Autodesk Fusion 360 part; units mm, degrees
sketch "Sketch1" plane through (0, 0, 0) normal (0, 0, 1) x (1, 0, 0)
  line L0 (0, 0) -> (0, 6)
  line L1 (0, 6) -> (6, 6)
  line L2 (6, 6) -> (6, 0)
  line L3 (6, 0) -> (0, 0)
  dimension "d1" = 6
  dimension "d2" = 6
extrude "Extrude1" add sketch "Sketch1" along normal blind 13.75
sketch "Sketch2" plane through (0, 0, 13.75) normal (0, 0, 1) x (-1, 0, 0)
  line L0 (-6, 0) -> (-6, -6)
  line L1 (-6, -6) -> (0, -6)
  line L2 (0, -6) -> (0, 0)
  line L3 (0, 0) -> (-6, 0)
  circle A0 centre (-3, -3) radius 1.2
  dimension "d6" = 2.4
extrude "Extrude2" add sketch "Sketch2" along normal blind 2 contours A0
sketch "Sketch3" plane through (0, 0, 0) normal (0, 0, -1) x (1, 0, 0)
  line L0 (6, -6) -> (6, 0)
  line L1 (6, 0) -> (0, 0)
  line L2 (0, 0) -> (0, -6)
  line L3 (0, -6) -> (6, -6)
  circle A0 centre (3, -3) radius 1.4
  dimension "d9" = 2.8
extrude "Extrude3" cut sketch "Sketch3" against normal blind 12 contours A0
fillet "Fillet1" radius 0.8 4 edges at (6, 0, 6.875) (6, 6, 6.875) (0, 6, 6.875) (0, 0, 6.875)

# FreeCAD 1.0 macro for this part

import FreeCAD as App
import Part
import Sketcher

V = App.Vector
Q = App.Units.Quantity


def edges_at(feature, points):
    """Names of the edges that pass closest to the given points."""
    edges = feature.Shape.Edges
    near = lambda p: min(range(len(edges)), key=lambda i: edges[i].distToShape(Part.Vertex(*p))[0])
    return sorted({f"Edge{near(p) + 1}" for p in points})

doc = App.newDocument("Part")
body = doc.addObject("PartDesign::Body", "Body")

# Sketch on XY plane
sketch1 = body.newObject("Sketcher::SketchObject", "Sketch")
sketch1.AttachmentSupport = (doc.getObject("XY_Plane"), [""])
sketch1.MapMode = "FlatFace"
sketch1.addGeometry([
    Part.LineSegment(V(0, 6, 0), V(0, 0, 0)),
    Part.LineSegment(V(0, 0, 0), V(6, 0, 0)),
    Part.LineSegment(V(6, 0, 0), V(6, 6, 0)),
    Part.LineSegment(V(6, 6, 0), V(0, 6, 0)),
], False)
sketch1.addConstraint([
    Sketcher.Constraint("Coincident", 0, 2, 1, 1),
    Sketcher.Constraint("Coincident", 1, 2, 2, 1),
    Sketcher.Constraint("Coincident", 2, 2, 3, 1),
    Sketcher.Constraint("Coincident", 3, 2, 0, 1),
    Sketcher.Constraint("Vertical", 0),
    Sketcher.Constraint("Horizontal", 1),
    Sketcher.Constraint("Vertical", 2),
    Sketcher.Constraint("Horizontal", 3),
    Sketcher.Constraint("Coincident", 0, 2, -1, 1),
    Sketcher.Constraint("Equal", 3, 0),
    Sketcher.Constraint("DistanceX", 1, 1, 1, 2, Q("6 mm")),
])
pad1 = body.newObject("PartDesign::Pad", "Pad")
pad1.Profile = sketch1
pad1.Length = 13.75

# Sketch on XY plane
sketch2 = body.newObject("Sketcher::SketchObject", "Sketch001")
sketch2.AttachmentSupport = (doc.getObject("XY_Plane"), [""])
sketch2.MapMode = "FlatFace"
sketch2.AttachmentOffset = App.Placement(V(0, 0, 13.75), App.Rotation())
sketch2.addGeometry(Part.Circle(V(3, 3, 0), V(0, 0, 1), 1.2), False)
sketch2.addConstraint([
    Sketcher.Constraint("Diameter", 0, Q("2.4 mm")),
    Sketcher.Constraint("DistanceX", -1, 1, 0, 3, Q("3 mm")),
    Sketcher.Constraint("DistanceY", -1, 1, 0, 3, Q("3 mm")),
])
pad2 = body.newObject("PartDesign::Pad", "Pad001")
pad2.Profile = sketch2
pad2.Length = 2

# Sketch on XY plane
sketch3 = body.newObject("Sketcher::SketchObject", "Sketch002")
sketch3.AttachmentSupport = (doc.getObject("XY_Plane"), [""])
sketch3.MapMode = "FlatFace"
sketch3.addGeometry(Part.Circle(V(3, 3, 0), V(0, 0, 1), 1.4), False)
sketch3.addConstraint([
    Sketcher.Constraint("Diameter", 0, Q("2.8 mm")),
    Sketcher.Constraint("DistanceX", -1, 1, 0, 3, Q("3 mm")),
    Sketcher.Constraint("DistanceY", -1, 1, 0, 3, Q("3 mm")),
])
pocket1 = body.newObject("PartDesign::Pocket", "Pocket")
pocket1.Profile = sketch3
pocket1.Length = 12
pocket1.Reversed = True
doc.recompute()

fillet = body.newObject("PartDesign::Fillet", "Fillet")
fillet.Base = (pocket1, edges_at(pocket1, [
    (6, 0, 6.875),
    (6, 6, 6.875),
    (0, 6, 6.875),
    (0, 0, 6.875),
]))
fillet.Radius = 0.8

doc.recompute()
